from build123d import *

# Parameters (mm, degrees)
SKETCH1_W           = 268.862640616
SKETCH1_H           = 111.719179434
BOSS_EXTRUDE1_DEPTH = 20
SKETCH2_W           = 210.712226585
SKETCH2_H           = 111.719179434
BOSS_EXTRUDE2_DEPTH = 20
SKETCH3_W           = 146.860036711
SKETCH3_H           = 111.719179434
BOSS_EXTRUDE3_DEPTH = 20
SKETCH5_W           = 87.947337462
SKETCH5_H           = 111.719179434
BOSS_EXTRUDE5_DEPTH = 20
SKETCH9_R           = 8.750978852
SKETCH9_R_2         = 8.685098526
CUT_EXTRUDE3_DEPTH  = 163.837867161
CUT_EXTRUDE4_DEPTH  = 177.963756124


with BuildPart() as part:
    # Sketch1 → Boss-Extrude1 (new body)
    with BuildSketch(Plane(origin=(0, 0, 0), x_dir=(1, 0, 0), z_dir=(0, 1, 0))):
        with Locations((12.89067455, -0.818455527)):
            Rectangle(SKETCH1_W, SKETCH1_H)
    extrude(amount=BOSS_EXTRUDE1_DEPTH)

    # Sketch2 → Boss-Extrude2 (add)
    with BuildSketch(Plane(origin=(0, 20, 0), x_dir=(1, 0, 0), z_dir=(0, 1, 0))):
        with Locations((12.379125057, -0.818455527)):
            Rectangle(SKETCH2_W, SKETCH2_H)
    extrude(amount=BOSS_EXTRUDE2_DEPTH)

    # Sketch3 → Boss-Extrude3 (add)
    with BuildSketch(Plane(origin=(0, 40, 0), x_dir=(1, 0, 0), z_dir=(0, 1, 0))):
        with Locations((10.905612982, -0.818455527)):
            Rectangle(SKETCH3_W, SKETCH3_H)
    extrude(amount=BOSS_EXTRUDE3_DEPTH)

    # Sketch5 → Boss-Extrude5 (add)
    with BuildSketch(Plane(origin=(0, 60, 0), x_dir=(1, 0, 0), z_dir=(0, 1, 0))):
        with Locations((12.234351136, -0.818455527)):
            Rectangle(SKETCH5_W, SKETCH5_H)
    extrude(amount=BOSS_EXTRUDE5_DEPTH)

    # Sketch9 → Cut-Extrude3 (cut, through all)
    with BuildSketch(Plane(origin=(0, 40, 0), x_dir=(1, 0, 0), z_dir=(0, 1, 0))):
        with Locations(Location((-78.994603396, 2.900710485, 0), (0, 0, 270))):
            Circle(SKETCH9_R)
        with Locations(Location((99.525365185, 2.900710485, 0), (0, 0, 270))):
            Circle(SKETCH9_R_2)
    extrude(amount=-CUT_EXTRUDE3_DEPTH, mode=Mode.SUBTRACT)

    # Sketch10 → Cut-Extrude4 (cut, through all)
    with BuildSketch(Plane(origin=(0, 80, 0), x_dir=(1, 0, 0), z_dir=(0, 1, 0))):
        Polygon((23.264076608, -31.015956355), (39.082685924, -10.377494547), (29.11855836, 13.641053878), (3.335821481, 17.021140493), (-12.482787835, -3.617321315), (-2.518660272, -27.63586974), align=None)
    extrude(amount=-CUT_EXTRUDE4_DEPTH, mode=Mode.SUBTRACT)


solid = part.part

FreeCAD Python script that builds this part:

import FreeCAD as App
import Part
import Sketcher

doc = App.newDocument("Part")
body = doc.addObject("PartDesign::Body", "Body")

# Sketch on XZ plane
sketch1 = body.newObject("Sketcher::SketchObject", "Sketch")
sketch1.AttachmentSupport = (doc.getObject("XZ_Plane"), [""])
sketch1.MapMode = "FlatFace"
sketch1.addGeometry([
    Part.LineSegment(App.Vector(-122, -55, 0), App.Vector(-122, 57, 0)),
    Part.LineSegment(App.Vector(-122, 57, 0), App.Vector(147, 57, 0)),
    Part.LineSegment(App.Vector(147, 57, 0), App.Vector(147, -55, 0)),
    Part.LineSegment(App.Vector(147, -55, 0), App.Vector(-122, -55, 0)),
], False)
sketch1.addConstraint([
    Sketcher.Constraint("Coincident", 0, 2, 1, 1),
    Sketcher.Constraint("Coincident", 1, 2, 2, 1),
    Sketcher.Constraint("Coincident", 2, 2, 3, 1),
    Sketcher.Constraint("Coincident", 3, 2, 0, 1),
    Sketcher.Constraint("Vertical", 0),
    Sketcher.Constraint("Horizontal", 1),
    Sketcher.Constraint("Vertical", 2),
    Sketcher.Constraint("Horizontal", 3),
    Sketcher.Constraint("DistanceX", 1, 1, 1, 2, 268.862641),
    Sketcher.Constraint("DistanceY", 0, 1, 0, 2, 111.719179),
    Sketcher.Constraint("DistanceX", 0, 2, -1, 1, 121.540646),
    Sketcher.Constraint("DistanceY", -1, 1, 0, 2, 56.678045),
])
pad1 = body.newObject("PartDesign::Pad", "Pad")
pad1.Profile = sketch1
pad1.Length = 20
pad1.Reversed = True

# Sketch on XZ plane
sketch2 = body.newObject("Sketcher::SketchObject", "Sketch001")
sketch2.AttachmentSupport = (doc.getObject("XZ_Plane"), [""])
sketch2.MapMode = "FlatFace"
sketch2.AttachmentOffset = App.Placement(App.Vector(0, 0, -20), App.Rotation())
sketch2.addGeometry([
    Part.LineSegment(App.Vector(-93, -55, 0), App.Vector(-93, 57, 0)),
    Part.LineSegment(App.Vector(-93, 57, 0), App.Vector(118, 57, 0)),
    Part.LineSegment(App.Vector(118, 57, 0), App.Vector(118, -55, 0)),
    Part.LineSegment(App.Vector(118, -55, 0), App.Vector(-93, -55, 0)),
], False)
sketch2.addConstraint([
    Sketcher.Constraint("Coincident", 0, 2, 1, 1),
    Sketcher.Constraint("Coincident", 1, 2, 2, 1),
    Sketcher.Constraint("Coincident", 2, 2, 3, 1),
    Sketcher.Constraint("Coincident", 3, 2, 0, 1),
    Sketcher.Constraint("Vertical", 0),
    Sketcher.Constraint("Horizontal", 1),
    Sketcher.Constraint("Vertical", 2),
    Sketcher.Constraint("Horizontal", 3),
    Sketcher.Constraint("DistanceY", 0, 1, 0, 2, 111.719179),
    Sketcher.Constraint("DistanceX", 1, 1, 1, 2, 210.712227),
    Sketcher.Constraint("DistanceX", 0, 2, -1, 1, 92.976988),
    Sketcher.Constraint("DistanceY", -1, 1, 0, 2, 56.678045),
])
pad2 = body.newObject("PartDesign::Pad", "Pad001")
pad2.Profile = sketch2
pad2.Length = 20
pad2.Reversed = True

# Sketch on XZ plane
sketch3 = body.newObject("Sketcher::SketchObject", "Sketch002")
sketch3.AttachmentSupport = (doc.getObject("XZ_Plane"), [""])
sketch3.MapMode = "FlatFace"
sketch3.AttachmentOffset = App.Placement(App.Vector(0, 0, -40), App.Rotation())
sketch3.addGeometry([
    Part.LineSegment(App.Vector(-63, -55, 0), App.Vector(-63, 57, 0)),
    Part.LineSegment(App.Vector(-63, 57, 0), App.Vector(84, 57, 0)),
    Part.LineSegment(App.Vector(84, 57, 0), App.Vector(84, -55, 0)),
    Part.LineSegment(App.Vector(84, -55, 0), App.Vector(-63, -55, 0)),
], False)
sketch3.addConstraint([
    Sketcher.Constraint("Coincident", 0, 2, 1, 1),
    Sketcher.Constraint("Coincident", 1, 2, 2, 1),
    Sketcher.Constraint("Coincident", 2, 2, 3, 1),
    Sketcher.Constraint("Coincident", 3, 2, 0, 1),
    Sketcher.Constraint("Vertical", 0),
    Sketcher.Constraint("Horizontal", 1),
    Sketcher.Constraint("Vertical", 2),
    Sketcher.Constraint("Horizontal", 3),
    Sketcher.Constraint("DistanceY", 0, 1, 0, 2, 111.719179),
    Sketcher.Constraint("DistanceX", 1, 1, 1, 2, 146.860037),
    Sketcher.Constraint("DistanceX", -1, 1, 1, 2, 84.335631),
    Sketcher.Constraint("DistanceY", -1, 1, 0, 2, 56.678045),
])
pad3 = body.newObject("PartDesign::Pad", "Pad002")
pad3.Profile = sketch3
pad3.Length = 20
pad3.Reversed = True

# Sketch on XZ plane
sketch4 = body.newObject("Sketcher::SketchObject", "Sketch003")
sketch4.AttachmentSupport = (doc.getObject("XZ_Plane"), [""])
sketch4.MapMode = "FlatFace"
sketch4.AttachmentOffset = App.Placement(App.Vector(0, 0, -60), App.Rotation())
sketch4.addGeometry([
    Part.LineSegment(App.Vector(-32, -55, 0), App.Vector(-32, 57, 0)),
    Part.LineSegment(App.Vector(-32, 57, 0), App.Vector(56, 57, 0)),
    Part.LineSegment(App.Vector(56, 57, 0), App.Vector(56, -55, 0)),
    Part.LineSegment(App.Vector(56, -55, 0), App.Vector(-32, -55, 0)),
], False)
sketch4.addConstraint([
    Sketcher.Constraint("Coincident", 0, 2, 1, 1),
    Sketcher.Constraint("Coincident", 1, 2, 2, 1),
    Sketcher.Constraint("Coincident", 2, 2, 3, 1),
    Sketcher.Constraint("Coincident", 3, 2, 0, 1),
    Sketcher.Constraint("Vertical", 0),
    Sketcher.Constraint("Horizontal", 1),
    Sketcher.Constraint("Vertical", 2),
    Sketcher.Constraint("Horizontal", 3),
    Sketcher.Constraint("DistanceY", 0, 1, 0, 2, 111.719179),
    Sketcher.Constraint("DistanceX", 1, 1, 1, 2, 87.947337),
    Sketcher.Constraint("DistanceX", -1, 1, 1, 2, 56.20802),
    Sketcher.Constraint("DistanceY", -1, 1, 0, 2, 56.678045),
])
pad4 = body.newObject("PartDesign::Pad", "Pad003")
pad4.Profile = sketch4
pad4.Length = 20
pad4.Reversed = True

# Sketch on XZ plane
sketch5 = body.newObject("Sketcher::SketchObject", "Sketch004")
sketch5.AttachmentSupport = (doc.getObject("XZ_Plane"), [""])
sketch5.MapMode = "FlatFace"
sketch5.AttachmentOffset = App.Placement(App.Vector(0, 0, -40), App.Rotation())
sketch5.addGeometry([
    Part.Circle(App.Vector(-79, -3, 0), App.Vector(0, 0, 1), 9),
    Part.Circle(App.Vector(100, -3, 0), App.Vector(0, 0, 1), 9),
], False)
sketch5.addConstraint([
    Sketcher.Constraint("Horizontal", 0, 3, 1, 3),
    Sketcher.Constraint("Diameter", 0, 17.501958),
    Sketcher.Constraint("Diameter", 1, 17.370197),
    Sketcher.Constraint("DistanceY", 0, 3, -1, 1, 2.90071),
    Sketcher.Constraint("DistanceX", 0, 3, 1, 3, 178.519969),
    Sketcher.Constraint("DistanceX", 0, 3, -1, 1, 78.994603),
])
pocket1 = body.newObject("PartDesign::Pocket", "Pocket")
pocket1.Profile = sketch5
pocket1.Type = "ThroughAll"
pocket1.Reversed = True

# Sketch on XZ plane
sketch6 = body.newObject("Sketcher::SketchObject", "Sketch005")
sketch6.AttachmentSupport = (doc.getObject("XZ_Plane"), [""])
sketch6.MapMode = "FlatFace"
sketch6.AttachmentOffset = App.Placement(App.Vector(0, 0, -80), App.Rotation())
sketch6.addGeometry([
    Part.LineSegment(App.Vector(23.264077, 31.015956, 0), App.Vector(39.082686, 10.377495, 0)),  # 0
    Part.LineSegment(App.Vector(39.082686, 10.377495, 0), App.Vector(29.118558, -13.641054, 0)),  # 1
    Part.LineSegment(App.Vector(29.118558, -13.641054, 0), App.Vector(3.335821, -17.02114, 0)),  # 2
    Part.LineSegment(App.Vector(3.335821, -17.02114, 0), App.Vector(-12.482788, 3.617321, 0)),  # 3
    Part.LineSegment(App.Vector(-12.482788, 3.617321, 0), App.Vector(-2.51866, 27.63587, 0)),  # 4
    Part.LineSegment(App.Vector(-2.51866, 27.63587, 0), App.Vector(23.264077, 31.015956, 0)),  # 5
], False)
sketch6.addConstraint([
    Sketcher.Constraint("Coincident", 0, 2, 1, 1),
    Sketcher.Constraint("Coincident", 1, 2, 2, 1),
    Sketcher.Constraint("Coincident", 2, 2, 3, 1),
    Sketcher.Constraint("Coincident", 3, 2, 4, 1),
    Sketcher.Constraint("Coincident", 4, 2, 5, 1),
    Sketcher.Constraint("Coincident", 5, 2, 0, 1),
    Sketcher.Constraint("DistanceX", -1, 1, 1, 2, 29.118558),
    Sketcher.Constraint("DistanceX", -1, 1, 2, 2, 3.335821),
    Sketcher.Constraint("DistanceY", 2, 2, -1, 1, 17.02114),
    Sketcher.Constraint("DistanceY", -1, 1, 3, 2, 3.617321),
    Sketcher.Constraint("DistanceX", 4, 2, -1, 1, 2.51866),
    Sketcher.Constraint("DistanceY", -1, 1, 4, 2, 27.63587),
    Sketcher.Constraint("DistanceY", 1, 2, 0, 2, 24.018548),
    Sketcher.Constraint("DistanceX", 3, 2, 2, 2, 15.818609),
    Sketcher.Constraint("DistanceX", 5, 2, 0, 2, 15.818609),
    Sketcher.Constraint("DistanceY", 0, 2, 5, 2, 20.638462),
    Sketcher.Constraint("DistanceX", 5, 2, 1, 2, 5.854482),
    Sketcher.Constraint("Distance", 2, 26.003356),
])
pocket2 = body.newObject("PartDesign::Pocket", "Pocket001")
pocket2.Profile = sketch6
pocket2.Type = "ThroughAll"
pocket2.Reversed = True

doc.recompute()
